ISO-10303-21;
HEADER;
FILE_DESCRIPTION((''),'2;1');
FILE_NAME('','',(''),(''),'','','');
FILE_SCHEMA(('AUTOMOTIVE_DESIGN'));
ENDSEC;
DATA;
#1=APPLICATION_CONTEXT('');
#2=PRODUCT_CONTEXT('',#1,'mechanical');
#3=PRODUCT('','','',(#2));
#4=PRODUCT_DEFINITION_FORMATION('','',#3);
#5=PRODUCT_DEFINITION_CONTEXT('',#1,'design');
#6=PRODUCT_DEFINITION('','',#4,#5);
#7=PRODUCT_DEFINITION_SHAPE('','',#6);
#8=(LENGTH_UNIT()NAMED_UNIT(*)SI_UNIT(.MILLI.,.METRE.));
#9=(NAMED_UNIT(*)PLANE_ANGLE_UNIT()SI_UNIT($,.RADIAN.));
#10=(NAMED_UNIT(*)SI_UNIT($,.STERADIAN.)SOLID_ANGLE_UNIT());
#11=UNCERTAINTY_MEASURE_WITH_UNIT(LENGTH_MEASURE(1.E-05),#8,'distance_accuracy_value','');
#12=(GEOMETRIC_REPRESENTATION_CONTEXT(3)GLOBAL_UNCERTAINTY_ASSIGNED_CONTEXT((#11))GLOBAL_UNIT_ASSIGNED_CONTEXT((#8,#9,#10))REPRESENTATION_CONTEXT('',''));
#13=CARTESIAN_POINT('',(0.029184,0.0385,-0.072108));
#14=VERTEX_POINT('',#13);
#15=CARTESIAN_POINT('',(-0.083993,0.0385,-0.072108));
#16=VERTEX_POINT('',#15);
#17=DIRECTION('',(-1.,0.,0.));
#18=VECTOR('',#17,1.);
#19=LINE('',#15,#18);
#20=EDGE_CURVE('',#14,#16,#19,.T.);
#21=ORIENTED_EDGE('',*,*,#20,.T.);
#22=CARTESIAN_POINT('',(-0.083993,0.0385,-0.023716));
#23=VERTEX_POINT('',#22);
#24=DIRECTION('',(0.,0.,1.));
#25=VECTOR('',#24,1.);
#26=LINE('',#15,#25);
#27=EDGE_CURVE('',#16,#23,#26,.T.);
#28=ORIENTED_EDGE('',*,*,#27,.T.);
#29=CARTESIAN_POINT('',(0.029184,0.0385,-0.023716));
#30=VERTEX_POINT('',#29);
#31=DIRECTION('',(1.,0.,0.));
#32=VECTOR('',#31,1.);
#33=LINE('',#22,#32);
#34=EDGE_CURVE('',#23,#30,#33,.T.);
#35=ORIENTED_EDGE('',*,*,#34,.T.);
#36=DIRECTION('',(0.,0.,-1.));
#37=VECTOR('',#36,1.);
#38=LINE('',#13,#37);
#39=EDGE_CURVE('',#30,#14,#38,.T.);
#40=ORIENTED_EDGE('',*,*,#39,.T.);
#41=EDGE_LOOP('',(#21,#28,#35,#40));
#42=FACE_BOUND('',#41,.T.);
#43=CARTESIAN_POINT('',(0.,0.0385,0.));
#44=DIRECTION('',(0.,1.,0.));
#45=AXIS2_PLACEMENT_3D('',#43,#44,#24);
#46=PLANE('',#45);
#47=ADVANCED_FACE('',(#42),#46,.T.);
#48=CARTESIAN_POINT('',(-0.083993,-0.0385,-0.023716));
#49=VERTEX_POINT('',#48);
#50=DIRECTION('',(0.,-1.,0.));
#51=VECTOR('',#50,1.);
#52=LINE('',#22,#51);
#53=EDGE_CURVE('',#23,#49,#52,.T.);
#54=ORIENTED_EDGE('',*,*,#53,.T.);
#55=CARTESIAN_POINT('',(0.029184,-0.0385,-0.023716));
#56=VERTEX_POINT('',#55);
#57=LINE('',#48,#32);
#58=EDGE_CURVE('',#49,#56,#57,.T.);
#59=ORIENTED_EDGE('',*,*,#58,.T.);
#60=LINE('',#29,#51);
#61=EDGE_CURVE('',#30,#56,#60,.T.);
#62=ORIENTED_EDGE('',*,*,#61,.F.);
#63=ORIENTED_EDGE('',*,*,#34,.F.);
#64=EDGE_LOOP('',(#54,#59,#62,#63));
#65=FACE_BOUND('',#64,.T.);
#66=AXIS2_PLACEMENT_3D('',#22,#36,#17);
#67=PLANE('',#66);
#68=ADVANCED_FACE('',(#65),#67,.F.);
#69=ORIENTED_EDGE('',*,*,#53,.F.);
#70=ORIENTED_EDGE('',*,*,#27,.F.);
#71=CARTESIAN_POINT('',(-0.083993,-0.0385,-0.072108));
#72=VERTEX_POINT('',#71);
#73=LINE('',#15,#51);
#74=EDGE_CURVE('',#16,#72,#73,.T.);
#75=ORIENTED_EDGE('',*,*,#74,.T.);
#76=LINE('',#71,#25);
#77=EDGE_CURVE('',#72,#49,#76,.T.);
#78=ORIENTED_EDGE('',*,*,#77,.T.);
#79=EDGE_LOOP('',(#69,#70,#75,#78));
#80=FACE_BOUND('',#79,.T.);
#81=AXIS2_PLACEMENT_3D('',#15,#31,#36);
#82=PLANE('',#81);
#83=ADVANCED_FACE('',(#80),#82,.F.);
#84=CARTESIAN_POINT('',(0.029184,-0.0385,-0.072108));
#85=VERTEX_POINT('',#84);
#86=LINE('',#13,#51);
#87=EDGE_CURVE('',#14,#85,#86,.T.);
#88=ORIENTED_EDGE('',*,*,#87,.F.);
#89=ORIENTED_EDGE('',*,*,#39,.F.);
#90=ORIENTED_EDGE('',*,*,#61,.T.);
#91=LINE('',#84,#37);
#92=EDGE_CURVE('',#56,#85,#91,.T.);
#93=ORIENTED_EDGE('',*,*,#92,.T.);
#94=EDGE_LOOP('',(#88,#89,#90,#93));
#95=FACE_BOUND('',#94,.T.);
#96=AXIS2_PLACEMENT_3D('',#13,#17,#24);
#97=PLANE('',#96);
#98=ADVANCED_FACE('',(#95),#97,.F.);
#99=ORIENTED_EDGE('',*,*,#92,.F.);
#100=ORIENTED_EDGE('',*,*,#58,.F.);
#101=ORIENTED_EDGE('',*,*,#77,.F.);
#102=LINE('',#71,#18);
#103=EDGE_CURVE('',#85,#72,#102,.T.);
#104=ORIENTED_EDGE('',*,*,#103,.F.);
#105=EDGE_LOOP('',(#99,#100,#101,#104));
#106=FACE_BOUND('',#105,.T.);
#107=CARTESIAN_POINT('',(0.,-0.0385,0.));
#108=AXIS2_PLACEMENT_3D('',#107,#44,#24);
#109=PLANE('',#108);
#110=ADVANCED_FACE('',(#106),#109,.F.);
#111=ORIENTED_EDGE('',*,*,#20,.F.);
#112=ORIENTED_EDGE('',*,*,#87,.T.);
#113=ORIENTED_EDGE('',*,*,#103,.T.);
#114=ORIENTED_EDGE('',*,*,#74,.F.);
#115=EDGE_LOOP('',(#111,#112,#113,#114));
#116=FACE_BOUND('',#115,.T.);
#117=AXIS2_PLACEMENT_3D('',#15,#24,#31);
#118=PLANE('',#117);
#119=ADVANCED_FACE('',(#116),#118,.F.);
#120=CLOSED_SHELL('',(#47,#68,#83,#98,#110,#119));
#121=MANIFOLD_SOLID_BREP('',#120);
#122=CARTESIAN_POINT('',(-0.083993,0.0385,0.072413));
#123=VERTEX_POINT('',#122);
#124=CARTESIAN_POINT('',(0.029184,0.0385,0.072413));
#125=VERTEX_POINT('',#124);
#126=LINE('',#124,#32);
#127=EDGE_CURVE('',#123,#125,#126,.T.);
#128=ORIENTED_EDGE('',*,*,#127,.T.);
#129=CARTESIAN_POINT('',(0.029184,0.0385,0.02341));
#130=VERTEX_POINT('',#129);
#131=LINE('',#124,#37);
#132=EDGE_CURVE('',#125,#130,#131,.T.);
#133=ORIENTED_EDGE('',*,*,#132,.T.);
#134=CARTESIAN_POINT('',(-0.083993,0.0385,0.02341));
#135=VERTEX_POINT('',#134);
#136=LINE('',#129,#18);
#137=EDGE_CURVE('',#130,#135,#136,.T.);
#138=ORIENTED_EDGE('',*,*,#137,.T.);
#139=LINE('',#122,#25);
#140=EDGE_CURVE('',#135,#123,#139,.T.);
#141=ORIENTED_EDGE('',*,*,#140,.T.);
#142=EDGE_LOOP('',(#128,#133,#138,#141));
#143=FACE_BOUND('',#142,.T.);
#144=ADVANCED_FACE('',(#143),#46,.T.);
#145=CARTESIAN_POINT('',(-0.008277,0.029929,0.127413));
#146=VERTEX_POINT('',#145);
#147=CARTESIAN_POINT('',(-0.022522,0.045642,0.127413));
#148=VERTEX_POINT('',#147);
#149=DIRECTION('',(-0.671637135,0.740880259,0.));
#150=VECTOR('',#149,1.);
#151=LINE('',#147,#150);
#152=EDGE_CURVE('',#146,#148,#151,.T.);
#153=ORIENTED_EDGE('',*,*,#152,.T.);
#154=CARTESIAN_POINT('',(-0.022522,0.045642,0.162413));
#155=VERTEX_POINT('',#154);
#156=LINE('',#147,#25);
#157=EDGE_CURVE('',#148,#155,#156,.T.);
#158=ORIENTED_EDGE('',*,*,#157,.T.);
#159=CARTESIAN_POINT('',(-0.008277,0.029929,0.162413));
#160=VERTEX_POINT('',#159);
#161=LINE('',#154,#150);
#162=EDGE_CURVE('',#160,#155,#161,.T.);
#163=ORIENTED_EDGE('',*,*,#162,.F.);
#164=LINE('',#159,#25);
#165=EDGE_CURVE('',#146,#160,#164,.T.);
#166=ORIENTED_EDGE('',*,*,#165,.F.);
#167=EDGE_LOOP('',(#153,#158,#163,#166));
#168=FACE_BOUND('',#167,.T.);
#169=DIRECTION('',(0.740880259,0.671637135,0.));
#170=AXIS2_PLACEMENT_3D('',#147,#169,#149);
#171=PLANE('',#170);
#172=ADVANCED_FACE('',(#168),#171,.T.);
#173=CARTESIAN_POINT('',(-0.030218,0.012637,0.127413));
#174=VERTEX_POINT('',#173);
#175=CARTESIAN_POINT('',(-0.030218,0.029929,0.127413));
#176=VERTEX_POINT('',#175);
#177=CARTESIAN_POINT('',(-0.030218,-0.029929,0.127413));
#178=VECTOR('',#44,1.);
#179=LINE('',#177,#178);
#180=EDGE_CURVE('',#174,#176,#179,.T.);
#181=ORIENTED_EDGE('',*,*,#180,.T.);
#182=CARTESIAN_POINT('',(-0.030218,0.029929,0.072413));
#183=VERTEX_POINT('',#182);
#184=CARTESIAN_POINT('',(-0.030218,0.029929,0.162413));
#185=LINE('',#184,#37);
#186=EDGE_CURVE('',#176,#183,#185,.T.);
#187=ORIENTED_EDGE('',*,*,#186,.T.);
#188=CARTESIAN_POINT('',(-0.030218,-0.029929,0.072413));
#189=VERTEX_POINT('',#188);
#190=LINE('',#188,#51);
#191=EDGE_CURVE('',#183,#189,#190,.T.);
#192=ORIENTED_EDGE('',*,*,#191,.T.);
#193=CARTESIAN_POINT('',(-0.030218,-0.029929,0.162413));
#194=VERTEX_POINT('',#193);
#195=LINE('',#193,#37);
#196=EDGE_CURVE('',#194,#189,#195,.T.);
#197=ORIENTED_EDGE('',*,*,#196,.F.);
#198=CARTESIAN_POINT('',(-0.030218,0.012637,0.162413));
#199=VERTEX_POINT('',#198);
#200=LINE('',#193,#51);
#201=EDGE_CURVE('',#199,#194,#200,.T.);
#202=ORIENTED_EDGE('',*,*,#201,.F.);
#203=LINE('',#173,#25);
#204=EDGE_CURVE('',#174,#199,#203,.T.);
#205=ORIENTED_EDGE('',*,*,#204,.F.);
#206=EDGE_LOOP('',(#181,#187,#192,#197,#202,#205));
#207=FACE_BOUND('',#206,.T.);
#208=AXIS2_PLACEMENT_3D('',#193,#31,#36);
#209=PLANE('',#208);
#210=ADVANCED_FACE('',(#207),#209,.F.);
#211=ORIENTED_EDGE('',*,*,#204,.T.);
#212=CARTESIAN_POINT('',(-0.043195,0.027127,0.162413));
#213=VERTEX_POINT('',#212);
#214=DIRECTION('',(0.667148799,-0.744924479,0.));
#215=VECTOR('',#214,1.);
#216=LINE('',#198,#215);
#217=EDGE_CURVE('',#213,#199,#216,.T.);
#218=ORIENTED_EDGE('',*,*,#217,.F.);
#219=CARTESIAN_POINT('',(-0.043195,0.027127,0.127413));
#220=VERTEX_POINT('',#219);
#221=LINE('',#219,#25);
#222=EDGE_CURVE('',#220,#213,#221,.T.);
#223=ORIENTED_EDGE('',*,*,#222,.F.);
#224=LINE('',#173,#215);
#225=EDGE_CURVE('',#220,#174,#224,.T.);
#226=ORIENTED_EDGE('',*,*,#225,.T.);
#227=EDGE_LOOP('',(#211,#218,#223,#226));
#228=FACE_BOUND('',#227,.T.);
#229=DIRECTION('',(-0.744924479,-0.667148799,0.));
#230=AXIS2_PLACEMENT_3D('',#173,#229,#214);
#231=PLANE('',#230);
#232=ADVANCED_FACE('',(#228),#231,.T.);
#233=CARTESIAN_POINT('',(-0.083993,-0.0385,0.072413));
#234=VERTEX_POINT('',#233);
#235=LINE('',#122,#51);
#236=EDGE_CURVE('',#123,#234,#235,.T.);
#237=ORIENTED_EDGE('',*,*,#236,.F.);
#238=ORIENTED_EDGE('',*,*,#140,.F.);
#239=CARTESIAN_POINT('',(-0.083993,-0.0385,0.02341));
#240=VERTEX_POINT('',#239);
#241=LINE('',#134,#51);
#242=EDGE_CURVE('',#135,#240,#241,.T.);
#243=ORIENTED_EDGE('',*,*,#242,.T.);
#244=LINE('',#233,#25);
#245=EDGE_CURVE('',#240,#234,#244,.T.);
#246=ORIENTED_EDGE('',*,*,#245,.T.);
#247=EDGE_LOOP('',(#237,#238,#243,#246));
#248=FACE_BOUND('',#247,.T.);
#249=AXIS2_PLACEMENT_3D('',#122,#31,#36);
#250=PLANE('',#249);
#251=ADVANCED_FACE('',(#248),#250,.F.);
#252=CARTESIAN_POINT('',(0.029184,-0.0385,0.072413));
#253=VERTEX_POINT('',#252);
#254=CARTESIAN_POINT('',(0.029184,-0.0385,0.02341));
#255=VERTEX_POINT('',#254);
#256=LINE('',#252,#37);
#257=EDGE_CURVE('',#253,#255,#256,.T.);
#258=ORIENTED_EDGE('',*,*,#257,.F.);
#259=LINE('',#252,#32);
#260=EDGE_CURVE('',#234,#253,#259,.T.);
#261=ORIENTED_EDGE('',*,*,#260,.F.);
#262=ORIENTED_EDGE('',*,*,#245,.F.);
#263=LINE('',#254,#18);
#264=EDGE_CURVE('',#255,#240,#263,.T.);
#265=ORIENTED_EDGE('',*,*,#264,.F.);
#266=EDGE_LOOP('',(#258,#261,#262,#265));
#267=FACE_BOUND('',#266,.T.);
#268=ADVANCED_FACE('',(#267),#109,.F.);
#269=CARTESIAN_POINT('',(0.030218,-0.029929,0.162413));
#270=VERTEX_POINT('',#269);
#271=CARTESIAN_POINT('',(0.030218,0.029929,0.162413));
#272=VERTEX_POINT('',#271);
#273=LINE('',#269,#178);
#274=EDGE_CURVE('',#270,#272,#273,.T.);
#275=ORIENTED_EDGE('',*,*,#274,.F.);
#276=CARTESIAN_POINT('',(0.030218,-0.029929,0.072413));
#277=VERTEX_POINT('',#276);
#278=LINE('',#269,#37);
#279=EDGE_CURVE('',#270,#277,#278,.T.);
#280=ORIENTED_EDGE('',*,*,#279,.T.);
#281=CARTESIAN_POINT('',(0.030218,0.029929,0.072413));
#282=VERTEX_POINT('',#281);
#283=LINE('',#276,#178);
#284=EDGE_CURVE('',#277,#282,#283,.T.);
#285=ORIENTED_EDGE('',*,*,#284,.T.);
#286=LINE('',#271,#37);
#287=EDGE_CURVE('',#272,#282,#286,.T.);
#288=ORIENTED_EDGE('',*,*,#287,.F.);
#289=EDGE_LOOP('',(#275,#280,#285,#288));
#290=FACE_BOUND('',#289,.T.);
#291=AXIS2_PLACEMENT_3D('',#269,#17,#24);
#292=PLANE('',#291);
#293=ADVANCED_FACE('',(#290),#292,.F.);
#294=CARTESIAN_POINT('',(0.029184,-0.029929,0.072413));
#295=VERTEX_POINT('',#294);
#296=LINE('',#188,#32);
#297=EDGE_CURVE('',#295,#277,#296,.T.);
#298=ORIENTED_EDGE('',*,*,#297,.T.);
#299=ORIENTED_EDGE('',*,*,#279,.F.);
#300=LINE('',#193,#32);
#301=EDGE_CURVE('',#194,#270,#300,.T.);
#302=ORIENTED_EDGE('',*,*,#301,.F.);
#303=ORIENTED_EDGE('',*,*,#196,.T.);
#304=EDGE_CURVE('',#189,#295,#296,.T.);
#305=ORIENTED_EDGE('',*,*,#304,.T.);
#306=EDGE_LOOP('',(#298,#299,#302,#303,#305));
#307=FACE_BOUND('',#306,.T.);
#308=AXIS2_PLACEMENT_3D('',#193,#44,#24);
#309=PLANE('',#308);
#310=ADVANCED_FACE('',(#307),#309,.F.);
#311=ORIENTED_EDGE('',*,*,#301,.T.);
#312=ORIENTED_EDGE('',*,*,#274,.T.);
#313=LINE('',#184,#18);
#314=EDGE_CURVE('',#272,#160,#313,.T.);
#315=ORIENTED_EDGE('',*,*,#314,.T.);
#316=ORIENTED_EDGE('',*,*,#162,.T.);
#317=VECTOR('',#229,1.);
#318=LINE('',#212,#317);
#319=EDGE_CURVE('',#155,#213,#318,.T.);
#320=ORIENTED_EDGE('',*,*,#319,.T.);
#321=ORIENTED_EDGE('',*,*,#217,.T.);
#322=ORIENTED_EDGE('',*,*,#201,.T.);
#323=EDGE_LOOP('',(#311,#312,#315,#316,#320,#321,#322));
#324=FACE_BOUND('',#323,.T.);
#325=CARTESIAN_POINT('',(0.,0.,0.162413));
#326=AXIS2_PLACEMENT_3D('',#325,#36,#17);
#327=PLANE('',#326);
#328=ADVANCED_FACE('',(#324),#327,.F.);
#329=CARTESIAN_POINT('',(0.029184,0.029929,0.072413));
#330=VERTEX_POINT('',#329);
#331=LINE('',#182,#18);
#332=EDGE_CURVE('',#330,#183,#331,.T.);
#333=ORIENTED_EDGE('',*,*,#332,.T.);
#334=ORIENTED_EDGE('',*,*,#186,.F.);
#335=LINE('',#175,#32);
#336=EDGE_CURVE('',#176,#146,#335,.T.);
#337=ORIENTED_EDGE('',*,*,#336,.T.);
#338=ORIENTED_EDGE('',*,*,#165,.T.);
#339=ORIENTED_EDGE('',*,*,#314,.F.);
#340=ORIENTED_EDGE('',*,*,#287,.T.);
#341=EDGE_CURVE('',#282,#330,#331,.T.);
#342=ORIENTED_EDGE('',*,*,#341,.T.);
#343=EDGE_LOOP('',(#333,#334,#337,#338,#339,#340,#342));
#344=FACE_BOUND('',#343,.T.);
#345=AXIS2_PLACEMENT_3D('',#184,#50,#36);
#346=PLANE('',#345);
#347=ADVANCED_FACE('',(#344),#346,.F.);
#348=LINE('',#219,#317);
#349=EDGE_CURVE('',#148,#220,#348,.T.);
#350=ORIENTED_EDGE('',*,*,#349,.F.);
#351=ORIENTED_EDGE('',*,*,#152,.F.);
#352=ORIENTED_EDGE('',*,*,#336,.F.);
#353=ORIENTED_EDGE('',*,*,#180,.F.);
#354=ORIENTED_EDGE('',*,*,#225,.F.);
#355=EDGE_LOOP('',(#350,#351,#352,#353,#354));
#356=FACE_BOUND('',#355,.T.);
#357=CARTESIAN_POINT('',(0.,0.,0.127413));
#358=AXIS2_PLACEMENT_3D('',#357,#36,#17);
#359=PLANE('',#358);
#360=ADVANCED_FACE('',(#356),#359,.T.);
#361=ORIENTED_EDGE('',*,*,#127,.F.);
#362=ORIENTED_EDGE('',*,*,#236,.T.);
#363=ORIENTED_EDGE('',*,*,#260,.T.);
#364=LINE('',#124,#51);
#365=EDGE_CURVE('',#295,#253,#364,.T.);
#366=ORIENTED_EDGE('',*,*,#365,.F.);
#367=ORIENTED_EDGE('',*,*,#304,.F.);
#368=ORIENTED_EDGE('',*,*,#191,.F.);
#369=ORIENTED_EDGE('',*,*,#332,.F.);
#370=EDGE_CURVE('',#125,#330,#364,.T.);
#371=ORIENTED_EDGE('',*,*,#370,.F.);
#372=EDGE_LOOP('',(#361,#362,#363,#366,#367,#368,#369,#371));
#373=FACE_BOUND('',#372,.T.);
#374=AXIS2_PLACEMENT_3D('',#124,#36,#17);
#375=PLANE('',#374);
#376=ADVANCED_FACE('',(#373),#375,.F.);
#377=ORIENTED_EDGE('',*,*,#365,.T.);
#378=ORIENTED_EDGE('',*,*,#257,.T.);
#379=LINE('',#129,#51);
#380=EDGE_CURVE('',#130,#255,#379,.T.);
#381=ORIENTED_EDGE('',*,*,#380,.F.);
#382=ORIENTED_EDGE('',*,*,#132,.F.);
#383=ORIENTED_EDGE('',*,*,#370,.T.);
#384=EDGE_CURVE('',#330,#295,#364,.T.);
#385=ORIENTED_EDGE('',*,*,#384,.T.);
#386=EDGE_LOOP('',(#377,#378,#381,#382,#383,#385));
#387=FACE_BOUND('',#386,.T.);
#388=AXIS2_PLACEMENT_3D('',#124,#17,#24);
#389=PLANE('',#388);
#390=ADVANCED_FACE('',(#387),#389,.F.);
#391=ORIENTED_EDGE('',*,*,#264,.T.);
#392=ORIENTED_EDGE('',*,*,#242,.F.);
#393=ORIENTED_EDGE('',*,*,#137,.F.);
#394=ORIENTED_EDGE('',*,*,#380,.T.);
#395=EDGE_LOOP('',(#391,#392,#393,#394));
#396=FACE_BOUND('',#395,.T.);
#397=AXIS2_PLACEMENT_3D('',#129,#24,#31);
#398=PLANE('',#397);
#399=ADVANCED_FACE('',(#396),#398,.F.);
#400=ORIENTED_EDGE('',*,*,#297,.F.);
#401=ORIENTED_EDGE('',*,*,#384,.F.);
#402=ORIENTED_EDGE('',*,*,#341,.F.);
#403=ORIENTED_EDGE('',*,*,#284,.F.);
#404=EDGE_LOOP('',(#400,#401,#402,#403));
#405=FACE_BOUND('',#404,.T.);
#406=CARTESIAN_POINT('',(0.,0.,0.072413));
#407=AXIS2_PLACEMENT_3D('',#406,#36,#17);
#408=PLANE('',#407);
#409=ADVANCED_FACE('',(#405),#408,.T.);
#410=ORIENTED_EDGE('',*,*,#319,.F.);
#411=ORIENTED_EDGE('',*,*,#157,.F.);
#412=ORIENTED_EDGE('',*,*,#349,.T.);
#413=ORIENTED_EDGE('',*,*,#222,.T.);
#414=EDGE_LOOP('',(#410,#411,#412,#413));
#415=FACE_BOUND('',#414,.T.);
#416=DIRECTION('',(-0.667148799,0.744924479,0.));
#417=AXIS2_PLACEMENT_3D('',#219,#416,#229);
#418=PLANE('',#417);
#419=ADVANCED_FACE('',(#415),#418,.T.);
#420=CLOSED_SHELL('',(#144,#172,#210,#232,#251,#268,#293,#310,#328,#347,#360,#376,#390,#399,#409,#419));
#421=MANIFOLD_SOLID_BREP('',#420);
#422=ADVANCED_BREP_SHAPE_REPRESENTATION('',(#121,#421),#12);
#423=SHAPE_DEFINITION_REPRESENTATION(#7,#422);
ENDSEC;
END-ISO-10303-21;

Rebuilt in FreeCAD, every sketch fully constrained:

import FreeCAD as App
import Part
import Sketcher
Q = App.Units.Quantity

doc = App.newDocument("Part")
body = doc.addObject("PartDesign::Body", "Body")

# Sketch on XZ plane
sketch1 = body.newObject("Sketcher::SketchObject", "Sketch")
sketch1.AttachmentSupport = (doc.getObject("XZ_Plane"), [""])
sketch1.MapMode = "FlatFace"
sketch1.addGeometry([
    Part.LineSegment(App.Vector(-0.083993, -0.072108, 0), App.Vector(-0.083993, -0.023716, 0)),
    Part.LineSegment(App.Vector(-0.083993, -0.023716, 0), App.Vector(0.029184, -0.023716, 0)),
    Part.LineSegment(App.Vector(0.029184, -0.023716, 0), App.Vector(0.029184, -0.072108, 0)),
    Part.LineSegment(App.Vector(0.029184, -0.072108, 0), App.Vector(-0.083993, -0.072108, 0)),
], False)
sketch1.addConstraint([
    Sketcher.Constraint("Coincident", 0, 2, 1, 1),
    Sketcher.Constraint("Coincident", 1, 2, 2, 1),
    Sketcher.Constraint("Coincident", 2, 2, 3, 1),
    Sketcher.Constraint("Coincident", 3, 2, 0, 1),
    Sketcher.Constraint("Vertical", 0),
    Sketcher.Constraint("Horizontal", 1),
    Sketcher.Constraint("Vertical", 2),
    Sketcher.Constraint("Horizontal", 3),
    Sketcher.Constraint("DistanceX", 1, 1, 1, 2, Q("0.113177 mm")),
    Sketcher.Constraint("DistanceY", 0, 1, 0, 2, Q("0.048392 mm")),
    Sketcher.Constraint("DistanceY", 2, 2, -1, 1, Q("0.072108 mm")),
    Sketcher.Constraint("DistanceX", 0, 2, -1, 1, Q("0.083993 mm")),
])
pad1 = body.newObject("PartDesign::Pad", "Pad")
pad1.Profile = sketch1
pad1.Length = 0.077
pad1.Midplane = True
body2 = doc.addObject("PartDesign::Body", "Body001")

# Sketch on XZ plane
sketch2 = body2.newObject("Sketcher::SketchObject", "Sketch001")
sketch2.AttachmentSupport = (doc.getObject("XZ_Plane001"), [""])
sketch2.MapMode = "FlatFace"
sketch2.addGeometry([
    Part.LineSegment(App.Vector(-0.083993, 0.02341, 0), App.Vector(-0.083993, 0.072413, 0)),
    Part.LineSegment(App.Vector(-0.083993, 0.072413, 0), App.Vector(0.029184, 0.072413, 0)),
    Part.LineSegment(App.Vector(0.029184, 0.072413, 0), App.Vector(0.029184, 0.02341, 0)),
    Part.LineSegment(App.Vector(0.029184, 0.02341, 0), App.Vector(-0.083993, 0.02341, 0)),
], False)
sketch2.addConstraint([
    Sketcher.Constraint("Coincident", 0, 2, 1, 1),
    Sketcher.Constraint("Coincident", 1, 2, 2, 1),
    Sketcher.Constraint("Coincident", 2, 2, 3, 1),
    Sketcher.Constraint("Coincident", 3, 2, 0, 1),
    Sketcher.Constraint("Vertical", 0),
    Sketcher.Constraint("Horizontal", 1),
    Sketcher.Constraint("Vertical", 2),
    Sketcher.Constraint("Horizontal", 3),
    Sketcher.Constraint("DistanceX", 1, 1, 1, 2, Q("0.113177 mm")),
    Sketcher.Constraint("DistanceY", 0, 1, 0, 2, Q("0.049003 mm")),
    Sketcher.Constraint("DistanceY", -1, 1, 2, 2, Q("0.02341 mm")),
    Sketcher.Constraint("DistanceX", 0, 2, -1, 1, Q("0.083993 mm")),
])
pad2 = body2.newObject("PartDesign::Pad", "Pad001")
pad2.Profile = sketch2
pad2.Length = 0.077
pad2.Midplane = True

# Sketch on XY plane
sketch3 = body2.newObject("Sketcher::SketchObject", "Sketch002")
sketch3.AttachmentSupport = (doc.getObject("XY_Plane001"), [""])
sketch3.MapMode = "FlatFace"
sketch3.AttachmentOffset = App.Placement(App.Vector(0, 0, 0.072413), App.Rotation())
sketch3.addGeometry([
    Part.LineSegment(App.Vector(-0.030218, 0.029929, 0), App.Vector(-0.030218, -0.029929, 0)),
    Part.LineSegment(App.Vector(-0.030218, -0.029929, 0), App.Vector(0.030218, -0.029929, 0)),
    Part.LineSegment(App.Vector(0.030218, -0.029929, 0), App.Vector(0.030218, 0.029929, 0)),
    Part.LineSegment(App.Vector(0.030218, 0.029929, 0), App.Vector(-0.030218, 0.029929, 0)),
], False)
sketch3.addConstraint([
    Sketcher.Constraint("Coincident", 0, 2, 1, 1),
    Sketcher.Constraint("Coincident", 1, 2, 2, 1),
    Sketcher.Constraint("Coincident", 2, 2, 3, 1),
    Sketcher.Constraint("Coincident", 3, 2, 0, 1),
    Sketcher.Constraint("Vertical", 0),
    Sketcher.Constraint("Horizontal", 1),
    Sketcher.Constraint("Vertical", 2),
    Sketcher.Constraint("Horizontal", 3),
    Sketcher.Constraint("Symmetric", 0, 2, 2, 2, -1, 1),
    Sketcher.Constraint("DistanceX", 1, 1, 1, 2, Q("0.060435 mm")),
    Sketcher.Constraint("DistanceY", 0, 2, 0, 1, Q("0.059857 mm")),
])
pad3 = body2.newObject("PartDesign::Pad", "Pad002")
pad3.Profile = sketch3
pad3.Length = 0.09

# Sketch on XY plane
sketch4 = body2.newObject("Sketcher::SketchObject", "Sketch003")
sketch4.AttachmentSupport = (doc.getObject("XY_Plane001"), [""])
sketch4.MapMode = "FlatFace"
sketch4.AttachmentOffset = App.Placement(App.Vector(0, 0, 0.162413), App.Rotation())
sketch4.addGeometry([
    Part.LineSegment(App.Vector(-0.043195, 0.027127, 0), App.Vector(-0.030218, 0.012637, 0)),
    Part.LineSegment(App.Vector(-0.030218, 0.012637, 0), App.Vector(-0.007891, 0.029502, 0)),
    Part.LineSegment(App.Vector(-0.007891, 0.029502, 0), App.Vector(-0.022522, 0.045642, 0)),
    Part.LineSegment(App.Vector(-0.022522, 0.045642, 0), App.Vector(-0.043195, 0.027127, 0)),
], False)
sketch4.addConstraint([
    Sketcher.Constraint("Coincident", 0, 2, 1, 1),
    Sketcher.Constraint("Coincident", 1, 2, 2, 1),
    Sketcher.Constraint("Coincident", 2, 2, 3, 1),
    Sketcher.Constraint("Coincident", 3, 2, 0, 1),
    Sketcher.Constraint("Perpendicular", 0, 3),
    Sketcher.Constraint("Distance", 1, Q("0.027981 mm")),
    Sketcher.Constraint("DistanceX", 1, 2, -1, 1, Q("0.007891 mm")),
    Sketcher.Constraint("DistanceX", 2, 2, 1, 2, Q("0.014632 mm")),
    Sketcher.Constraint("DistanceY", 1, 2, 2, 2, Q("0.01614 mm")),
    Sketcher.Constraint("DistanceY", 0, 2, 3, 2, Q("0.014491 mm")),
    Sketcher.Constraint("Distance", 0, Q("0.019453 mm")),
    Sketcher.Constraint("DistanceY", -1, 1, 0, 2, Q("0.012637 mm")),
])
pad4 = body2.newObject("PartDesign::Pad", "Pad003")
pad4.Profile = sketch4
pad4.Length = 0.035
pad4.Reversed = True

doc.recompute()
